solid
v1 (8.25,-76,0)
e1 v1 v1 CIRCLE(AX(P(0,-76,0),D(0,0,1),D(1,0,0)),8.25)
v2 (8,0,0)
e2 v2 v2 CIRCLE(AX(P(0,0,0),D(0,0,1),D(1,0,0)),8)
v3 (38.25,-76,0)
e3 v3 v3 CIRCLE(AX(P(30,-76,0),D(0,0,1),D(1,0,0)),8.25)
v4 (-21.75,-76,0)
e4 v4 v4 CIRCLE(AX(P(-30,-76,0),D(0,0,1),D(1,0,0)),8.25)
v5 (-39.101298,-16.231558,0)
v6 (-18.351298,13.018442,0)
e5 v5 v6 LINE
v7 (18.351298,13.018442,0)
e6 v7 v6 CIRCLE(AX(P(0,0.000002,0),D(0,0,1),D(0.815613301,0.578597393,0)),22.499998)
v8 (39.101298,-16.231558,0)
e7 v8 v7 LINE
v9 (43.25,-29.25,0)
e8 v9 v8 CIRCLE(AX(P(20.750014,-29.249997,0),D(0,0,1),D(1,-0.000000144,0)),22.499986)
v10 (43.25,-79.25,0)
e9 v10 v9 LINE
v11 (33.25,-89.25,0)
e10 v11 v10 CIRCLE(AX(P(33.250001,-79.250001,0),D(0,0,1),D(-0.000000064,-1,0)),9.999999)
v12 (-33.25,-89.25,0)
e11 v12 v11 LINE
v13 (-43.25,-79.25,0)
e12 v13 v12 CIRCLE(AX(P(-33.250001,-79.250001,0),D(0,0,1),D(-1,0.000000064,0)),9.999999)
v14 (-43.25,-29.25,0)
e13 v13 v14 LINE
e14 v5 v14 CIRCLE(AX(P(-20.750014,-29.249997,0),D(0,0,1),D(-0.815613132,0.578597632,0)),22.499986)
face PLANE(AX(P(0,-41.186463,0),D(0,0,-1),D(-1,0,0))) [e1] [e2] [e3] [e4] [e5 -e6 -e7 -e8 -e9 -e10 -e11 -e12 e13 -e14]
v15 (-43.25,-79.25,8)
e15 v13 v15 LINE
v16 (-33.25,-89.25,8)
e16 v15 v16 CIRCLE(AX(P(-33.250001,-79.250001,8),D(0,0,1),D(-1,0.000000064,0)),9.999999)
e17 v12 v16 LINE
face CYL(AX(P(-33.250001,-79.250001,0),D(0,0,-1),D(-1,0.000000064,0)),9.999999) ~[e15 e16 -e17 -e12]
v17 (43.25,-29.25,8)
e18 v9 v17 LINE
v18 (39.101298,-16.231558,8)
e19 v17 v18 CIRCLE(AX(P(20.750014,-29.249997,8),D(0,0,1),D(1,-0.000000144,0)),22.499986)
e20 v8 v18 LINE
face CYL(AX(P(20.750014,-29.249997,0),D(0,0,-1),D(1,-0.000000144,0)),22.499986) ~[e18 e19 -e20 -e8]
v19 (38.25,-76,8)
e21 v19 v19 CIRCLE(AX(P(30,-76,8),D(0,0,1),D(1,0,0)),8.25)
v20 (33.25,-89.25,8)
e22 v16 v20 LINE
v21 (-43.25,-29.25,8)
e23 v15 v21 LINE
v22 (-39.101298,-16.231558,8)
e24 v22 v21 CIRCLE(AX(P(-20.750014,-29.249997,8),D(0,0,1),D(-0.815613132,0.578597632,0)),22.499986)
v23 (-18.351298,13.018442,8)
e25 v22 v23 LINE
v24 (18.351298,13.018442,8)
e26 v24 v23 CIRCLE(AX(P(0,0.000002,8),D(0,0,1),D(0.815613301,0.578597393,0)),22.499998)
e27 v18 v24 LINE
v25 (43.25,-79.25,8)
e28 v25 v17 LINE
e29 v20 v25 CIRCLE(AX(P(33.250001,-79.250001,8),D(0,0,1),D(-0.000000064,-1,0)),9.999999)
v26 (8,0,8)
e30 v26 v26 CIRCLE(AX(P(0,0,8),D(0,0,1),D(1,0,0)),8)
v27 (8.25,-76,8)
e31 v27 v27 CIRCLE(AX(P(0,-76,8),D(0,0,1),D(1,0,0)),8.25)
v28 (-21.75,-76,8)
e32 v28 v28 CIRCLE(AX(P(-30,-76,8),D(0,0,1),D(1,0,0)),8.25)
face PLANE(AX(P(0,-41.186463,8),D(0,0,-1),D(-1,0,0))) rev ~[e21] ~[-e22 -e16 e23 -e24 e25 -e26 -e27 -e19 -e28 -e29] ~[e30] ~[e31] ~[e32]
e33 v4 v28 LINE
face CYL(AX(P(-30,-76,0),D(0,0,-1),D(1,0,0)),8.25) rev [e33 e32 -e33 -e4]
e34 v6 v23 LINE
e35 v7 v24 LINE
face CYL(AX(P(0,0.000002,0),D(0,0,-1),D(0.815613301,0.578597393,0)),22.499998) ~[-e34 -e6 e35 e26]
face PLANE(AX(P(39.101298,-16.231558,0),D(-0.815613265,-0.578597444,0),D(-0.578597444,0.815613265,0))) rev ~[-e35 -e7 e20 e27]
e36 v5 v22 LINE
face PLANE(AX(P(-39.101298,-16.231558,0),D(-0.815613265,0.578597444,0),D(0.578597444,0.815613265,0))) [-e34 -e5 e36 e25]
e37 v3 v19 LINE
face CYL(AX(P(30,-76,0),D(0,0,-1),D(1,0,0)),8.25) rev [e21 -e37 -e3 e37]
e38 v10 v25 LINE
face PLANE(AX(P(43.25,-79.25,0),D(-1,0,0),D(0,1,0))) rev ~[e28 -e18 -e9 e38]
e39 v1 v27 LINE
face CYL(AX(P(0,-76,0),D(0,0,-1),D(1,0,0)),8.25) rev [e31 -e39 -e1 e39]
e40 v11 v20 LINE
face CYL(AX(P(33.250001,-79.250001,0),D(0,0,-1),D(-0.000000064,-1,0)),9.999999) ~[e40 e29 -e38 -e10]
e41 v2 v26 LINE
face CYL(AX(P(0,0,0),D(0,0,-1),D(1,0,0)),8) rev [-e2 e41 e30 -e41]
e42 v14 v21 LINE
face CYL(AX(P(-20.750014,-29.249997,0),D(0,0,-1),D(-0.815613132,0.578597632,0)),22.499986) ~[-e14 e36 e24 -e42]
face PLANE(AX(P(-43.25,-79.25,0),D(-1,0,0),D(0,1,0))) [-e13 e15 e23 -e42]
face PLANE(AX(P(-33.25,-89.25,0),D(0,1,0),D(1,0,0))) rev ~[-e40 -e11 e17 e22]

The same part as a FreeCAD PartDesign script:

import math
import FreeCAD as App
import Part
import Sketcher
from FreeCAD import Vector
Q = App.Units.Quantity

doc = App.newDocument("Part")
params = doc.addObject("Spreadsheet::Sheet", "Params")
for row, (alias, value) in enumerate([
    ("sketch1_diameter", "16 mm"),
    ("sketch1_radius", "9.999999 mm"),
    ("sketch1_diameter2", "16.5 mm"),
    ("sketch1_radius2", "22.499998 mm"),
    ("sketch1_height", "50 mm"),
    ("pad1_length", "8 mm"),
], start=1):
    params.set(f"A{row}", alias)
    params.set(f"B{row}", "=" + value)
    params.setAlias(f"B{row}", alias)

body = doc.addObject("PartDesign::Body", "Body")

sketch1 = body.newObject("Sketcher::SketchObject", "Sketch")
sketch1.AttachmentSupport = (doc.getObject("XY_Plane"), [""])
sketch1.MapMode = "FlatFace"
sketch1.addGeometry([
    Part.LineSegment(Vector(-43, -29, 0), Vector(-43, -79, 0)),
    Part.ArcOfCircle(Part.Circle(Vector(-33, -79, 0), Vector(0, 0, 1), 10), math.radians(180), math.radians(270)),
    Part.LineSegment(Vector(-33, -89, 0), Vector(33, -89, 0)),
    Part.ArcOfCircle(Part.Circle(Vector(33, -79, 0), Vector(0, 0, 1), 10), math.radians(-90), math.radians(0)),
    Part.LineSegment(Vector(43, -79, 0), Vector(43, -29, 0)),
    Part.ArcOfCircle(Part.Circle(Vector(21, -29, 0), Vector(0, 0, 1), 22), math.radians(0), math.radians(35)),
    Part.LineSegment(Vector(39, -16, 0), Vector(18, 13, 0)),
    Part.ArcOfCircle(Part.Circle(Vector(0, 0, 0), Vector(0, 0, 1), 22), math.radians(35), math.radians(145)),
    Part.LineSegment(Vector(-18, 13, 0), Vector(-39, -16, 0)),
    Part.ArcOfCircle(Part.Circle(Vector(-21, -29, 0), Vector(0, 0, 1), 22), math.radians(145), math.radians(180)),
    Part.Circle(Vector(30, -76, 0), Vector(0, 0, 1), 8),
    Part.Circle(Vector(0, -76, 0), Vector(0, 0, 1), 8),
    Part.Circle(Vector(-30, -76, 0), Vector(0, 0, 1), 8),
    Part.Circle(Vector(0, 0, 0), Vector(0, 0, 1), 8),
], False)
sketch1.addConstraint([
    Sketcher.Constraint("Tangent", 0, 2, 1, 1),
    Sketcher.Constraint("Tangent", 1, 2, 2, 1),
    Sketcher.Constraint("Tangent", 2, 2, 3, 1),
    Sketcher.Constraint("Tangent", 3, 2, 4, 1),
    Sketcher.Constraint("Tangent", 4, 2, 5, 1),
    Sketcher.Constraint("Tangent", 5, 2, 6, 1),
    Sketcher.Constraint("Tangent", 6, 2, 7, 1),
    Sketcher.Constraint("Tangent", 7, 2, 8, 1),
    Sketcher.Constraint("Tangent", 8, 2, 9, 1),
    Sketcher.Constraint("Tangent", 9, 2, 0, 1),
    Sketcher.Constraint("Vertical", 0),
    Sketcher.Constraint("Horizontal", 2),
    Sketcher.Constraint("Vertical", 4),
    Sketcher.Constraint("Coincident", 7, 3, -1, 1),
    Sketcher.Constraint("Coincident", 13, 3, -1, 1),
    Sketcher.Constraint("Equal", 1, 3),
    Sketcher.Constraint("Equal", 5, 9),
    Sketcher.Constraint("Equal", 10, 11),
    Sketcher.Constraint("Equal", 11, 12),
    Sketcher.Constraint("Symmetric", 5, 3, 9, 3, -2),
    Sketcher.Constraint("Symmetric", 10, 3, 12, 3, -2),
    Sketcher.Constraint("PointOnObject", 11, 3, -2),
    Sketcher.Constraint("Horizontal", 10, 3, 11, 3),
    Sketcher.Constraint("Diameter", 13, Q("16 mm")),
    Sketcher.Constraint("Radius", 1, Q("9.999999 mm")),
    Sketcher.Constraint("Diameter", 10, Q("16.5 mm")),
    Sketcher.Constraint("Radius", 7, Q("22.499998 mm")),
    Sketcher.Constraint("DistanceY", 0, 2, 0, 1, Q("50 mm")),
    Sketcher.Constraint("DistanceX", 2, 1, 2, 2, Q("66.5 mm")),
    Sketcher.Constraint("DistanceX", -1, 1, 10, 3, Q("30 mm")),
    Sketcher.Constraint("DistanceY", 10, 3, -1, 1, Q("76 mm")),
    Sketcher.Constraint("DistanceY", 1, 3, -1, 1, Q("79.250001 mm")),
    Sketcher.Constraint("DistanceX", 6, 2, 5, 2, Q("20.75 mm")),
])
sketch1.setExpression("Constraints[23]", "Params.sketch1_diameter")
sketch1.setExpression("Constraints[24]", "Params.sketch1_radius")
sketch1.setExpression("Constraints[25]", "Params.sketch1_diameter2")
sketch1.setExpression("Constraints[26]", "Params.sketch1_radius2")
sketch1.setExpression("Constraints[27]", "Params.sketch1_height")
pad1 = body.newObject("PartDesign::Pad", "Pad")
pad1.Profile = sketch1
pad1.setExpression("Length", "Params.pad1_length")

doc.recompute()
